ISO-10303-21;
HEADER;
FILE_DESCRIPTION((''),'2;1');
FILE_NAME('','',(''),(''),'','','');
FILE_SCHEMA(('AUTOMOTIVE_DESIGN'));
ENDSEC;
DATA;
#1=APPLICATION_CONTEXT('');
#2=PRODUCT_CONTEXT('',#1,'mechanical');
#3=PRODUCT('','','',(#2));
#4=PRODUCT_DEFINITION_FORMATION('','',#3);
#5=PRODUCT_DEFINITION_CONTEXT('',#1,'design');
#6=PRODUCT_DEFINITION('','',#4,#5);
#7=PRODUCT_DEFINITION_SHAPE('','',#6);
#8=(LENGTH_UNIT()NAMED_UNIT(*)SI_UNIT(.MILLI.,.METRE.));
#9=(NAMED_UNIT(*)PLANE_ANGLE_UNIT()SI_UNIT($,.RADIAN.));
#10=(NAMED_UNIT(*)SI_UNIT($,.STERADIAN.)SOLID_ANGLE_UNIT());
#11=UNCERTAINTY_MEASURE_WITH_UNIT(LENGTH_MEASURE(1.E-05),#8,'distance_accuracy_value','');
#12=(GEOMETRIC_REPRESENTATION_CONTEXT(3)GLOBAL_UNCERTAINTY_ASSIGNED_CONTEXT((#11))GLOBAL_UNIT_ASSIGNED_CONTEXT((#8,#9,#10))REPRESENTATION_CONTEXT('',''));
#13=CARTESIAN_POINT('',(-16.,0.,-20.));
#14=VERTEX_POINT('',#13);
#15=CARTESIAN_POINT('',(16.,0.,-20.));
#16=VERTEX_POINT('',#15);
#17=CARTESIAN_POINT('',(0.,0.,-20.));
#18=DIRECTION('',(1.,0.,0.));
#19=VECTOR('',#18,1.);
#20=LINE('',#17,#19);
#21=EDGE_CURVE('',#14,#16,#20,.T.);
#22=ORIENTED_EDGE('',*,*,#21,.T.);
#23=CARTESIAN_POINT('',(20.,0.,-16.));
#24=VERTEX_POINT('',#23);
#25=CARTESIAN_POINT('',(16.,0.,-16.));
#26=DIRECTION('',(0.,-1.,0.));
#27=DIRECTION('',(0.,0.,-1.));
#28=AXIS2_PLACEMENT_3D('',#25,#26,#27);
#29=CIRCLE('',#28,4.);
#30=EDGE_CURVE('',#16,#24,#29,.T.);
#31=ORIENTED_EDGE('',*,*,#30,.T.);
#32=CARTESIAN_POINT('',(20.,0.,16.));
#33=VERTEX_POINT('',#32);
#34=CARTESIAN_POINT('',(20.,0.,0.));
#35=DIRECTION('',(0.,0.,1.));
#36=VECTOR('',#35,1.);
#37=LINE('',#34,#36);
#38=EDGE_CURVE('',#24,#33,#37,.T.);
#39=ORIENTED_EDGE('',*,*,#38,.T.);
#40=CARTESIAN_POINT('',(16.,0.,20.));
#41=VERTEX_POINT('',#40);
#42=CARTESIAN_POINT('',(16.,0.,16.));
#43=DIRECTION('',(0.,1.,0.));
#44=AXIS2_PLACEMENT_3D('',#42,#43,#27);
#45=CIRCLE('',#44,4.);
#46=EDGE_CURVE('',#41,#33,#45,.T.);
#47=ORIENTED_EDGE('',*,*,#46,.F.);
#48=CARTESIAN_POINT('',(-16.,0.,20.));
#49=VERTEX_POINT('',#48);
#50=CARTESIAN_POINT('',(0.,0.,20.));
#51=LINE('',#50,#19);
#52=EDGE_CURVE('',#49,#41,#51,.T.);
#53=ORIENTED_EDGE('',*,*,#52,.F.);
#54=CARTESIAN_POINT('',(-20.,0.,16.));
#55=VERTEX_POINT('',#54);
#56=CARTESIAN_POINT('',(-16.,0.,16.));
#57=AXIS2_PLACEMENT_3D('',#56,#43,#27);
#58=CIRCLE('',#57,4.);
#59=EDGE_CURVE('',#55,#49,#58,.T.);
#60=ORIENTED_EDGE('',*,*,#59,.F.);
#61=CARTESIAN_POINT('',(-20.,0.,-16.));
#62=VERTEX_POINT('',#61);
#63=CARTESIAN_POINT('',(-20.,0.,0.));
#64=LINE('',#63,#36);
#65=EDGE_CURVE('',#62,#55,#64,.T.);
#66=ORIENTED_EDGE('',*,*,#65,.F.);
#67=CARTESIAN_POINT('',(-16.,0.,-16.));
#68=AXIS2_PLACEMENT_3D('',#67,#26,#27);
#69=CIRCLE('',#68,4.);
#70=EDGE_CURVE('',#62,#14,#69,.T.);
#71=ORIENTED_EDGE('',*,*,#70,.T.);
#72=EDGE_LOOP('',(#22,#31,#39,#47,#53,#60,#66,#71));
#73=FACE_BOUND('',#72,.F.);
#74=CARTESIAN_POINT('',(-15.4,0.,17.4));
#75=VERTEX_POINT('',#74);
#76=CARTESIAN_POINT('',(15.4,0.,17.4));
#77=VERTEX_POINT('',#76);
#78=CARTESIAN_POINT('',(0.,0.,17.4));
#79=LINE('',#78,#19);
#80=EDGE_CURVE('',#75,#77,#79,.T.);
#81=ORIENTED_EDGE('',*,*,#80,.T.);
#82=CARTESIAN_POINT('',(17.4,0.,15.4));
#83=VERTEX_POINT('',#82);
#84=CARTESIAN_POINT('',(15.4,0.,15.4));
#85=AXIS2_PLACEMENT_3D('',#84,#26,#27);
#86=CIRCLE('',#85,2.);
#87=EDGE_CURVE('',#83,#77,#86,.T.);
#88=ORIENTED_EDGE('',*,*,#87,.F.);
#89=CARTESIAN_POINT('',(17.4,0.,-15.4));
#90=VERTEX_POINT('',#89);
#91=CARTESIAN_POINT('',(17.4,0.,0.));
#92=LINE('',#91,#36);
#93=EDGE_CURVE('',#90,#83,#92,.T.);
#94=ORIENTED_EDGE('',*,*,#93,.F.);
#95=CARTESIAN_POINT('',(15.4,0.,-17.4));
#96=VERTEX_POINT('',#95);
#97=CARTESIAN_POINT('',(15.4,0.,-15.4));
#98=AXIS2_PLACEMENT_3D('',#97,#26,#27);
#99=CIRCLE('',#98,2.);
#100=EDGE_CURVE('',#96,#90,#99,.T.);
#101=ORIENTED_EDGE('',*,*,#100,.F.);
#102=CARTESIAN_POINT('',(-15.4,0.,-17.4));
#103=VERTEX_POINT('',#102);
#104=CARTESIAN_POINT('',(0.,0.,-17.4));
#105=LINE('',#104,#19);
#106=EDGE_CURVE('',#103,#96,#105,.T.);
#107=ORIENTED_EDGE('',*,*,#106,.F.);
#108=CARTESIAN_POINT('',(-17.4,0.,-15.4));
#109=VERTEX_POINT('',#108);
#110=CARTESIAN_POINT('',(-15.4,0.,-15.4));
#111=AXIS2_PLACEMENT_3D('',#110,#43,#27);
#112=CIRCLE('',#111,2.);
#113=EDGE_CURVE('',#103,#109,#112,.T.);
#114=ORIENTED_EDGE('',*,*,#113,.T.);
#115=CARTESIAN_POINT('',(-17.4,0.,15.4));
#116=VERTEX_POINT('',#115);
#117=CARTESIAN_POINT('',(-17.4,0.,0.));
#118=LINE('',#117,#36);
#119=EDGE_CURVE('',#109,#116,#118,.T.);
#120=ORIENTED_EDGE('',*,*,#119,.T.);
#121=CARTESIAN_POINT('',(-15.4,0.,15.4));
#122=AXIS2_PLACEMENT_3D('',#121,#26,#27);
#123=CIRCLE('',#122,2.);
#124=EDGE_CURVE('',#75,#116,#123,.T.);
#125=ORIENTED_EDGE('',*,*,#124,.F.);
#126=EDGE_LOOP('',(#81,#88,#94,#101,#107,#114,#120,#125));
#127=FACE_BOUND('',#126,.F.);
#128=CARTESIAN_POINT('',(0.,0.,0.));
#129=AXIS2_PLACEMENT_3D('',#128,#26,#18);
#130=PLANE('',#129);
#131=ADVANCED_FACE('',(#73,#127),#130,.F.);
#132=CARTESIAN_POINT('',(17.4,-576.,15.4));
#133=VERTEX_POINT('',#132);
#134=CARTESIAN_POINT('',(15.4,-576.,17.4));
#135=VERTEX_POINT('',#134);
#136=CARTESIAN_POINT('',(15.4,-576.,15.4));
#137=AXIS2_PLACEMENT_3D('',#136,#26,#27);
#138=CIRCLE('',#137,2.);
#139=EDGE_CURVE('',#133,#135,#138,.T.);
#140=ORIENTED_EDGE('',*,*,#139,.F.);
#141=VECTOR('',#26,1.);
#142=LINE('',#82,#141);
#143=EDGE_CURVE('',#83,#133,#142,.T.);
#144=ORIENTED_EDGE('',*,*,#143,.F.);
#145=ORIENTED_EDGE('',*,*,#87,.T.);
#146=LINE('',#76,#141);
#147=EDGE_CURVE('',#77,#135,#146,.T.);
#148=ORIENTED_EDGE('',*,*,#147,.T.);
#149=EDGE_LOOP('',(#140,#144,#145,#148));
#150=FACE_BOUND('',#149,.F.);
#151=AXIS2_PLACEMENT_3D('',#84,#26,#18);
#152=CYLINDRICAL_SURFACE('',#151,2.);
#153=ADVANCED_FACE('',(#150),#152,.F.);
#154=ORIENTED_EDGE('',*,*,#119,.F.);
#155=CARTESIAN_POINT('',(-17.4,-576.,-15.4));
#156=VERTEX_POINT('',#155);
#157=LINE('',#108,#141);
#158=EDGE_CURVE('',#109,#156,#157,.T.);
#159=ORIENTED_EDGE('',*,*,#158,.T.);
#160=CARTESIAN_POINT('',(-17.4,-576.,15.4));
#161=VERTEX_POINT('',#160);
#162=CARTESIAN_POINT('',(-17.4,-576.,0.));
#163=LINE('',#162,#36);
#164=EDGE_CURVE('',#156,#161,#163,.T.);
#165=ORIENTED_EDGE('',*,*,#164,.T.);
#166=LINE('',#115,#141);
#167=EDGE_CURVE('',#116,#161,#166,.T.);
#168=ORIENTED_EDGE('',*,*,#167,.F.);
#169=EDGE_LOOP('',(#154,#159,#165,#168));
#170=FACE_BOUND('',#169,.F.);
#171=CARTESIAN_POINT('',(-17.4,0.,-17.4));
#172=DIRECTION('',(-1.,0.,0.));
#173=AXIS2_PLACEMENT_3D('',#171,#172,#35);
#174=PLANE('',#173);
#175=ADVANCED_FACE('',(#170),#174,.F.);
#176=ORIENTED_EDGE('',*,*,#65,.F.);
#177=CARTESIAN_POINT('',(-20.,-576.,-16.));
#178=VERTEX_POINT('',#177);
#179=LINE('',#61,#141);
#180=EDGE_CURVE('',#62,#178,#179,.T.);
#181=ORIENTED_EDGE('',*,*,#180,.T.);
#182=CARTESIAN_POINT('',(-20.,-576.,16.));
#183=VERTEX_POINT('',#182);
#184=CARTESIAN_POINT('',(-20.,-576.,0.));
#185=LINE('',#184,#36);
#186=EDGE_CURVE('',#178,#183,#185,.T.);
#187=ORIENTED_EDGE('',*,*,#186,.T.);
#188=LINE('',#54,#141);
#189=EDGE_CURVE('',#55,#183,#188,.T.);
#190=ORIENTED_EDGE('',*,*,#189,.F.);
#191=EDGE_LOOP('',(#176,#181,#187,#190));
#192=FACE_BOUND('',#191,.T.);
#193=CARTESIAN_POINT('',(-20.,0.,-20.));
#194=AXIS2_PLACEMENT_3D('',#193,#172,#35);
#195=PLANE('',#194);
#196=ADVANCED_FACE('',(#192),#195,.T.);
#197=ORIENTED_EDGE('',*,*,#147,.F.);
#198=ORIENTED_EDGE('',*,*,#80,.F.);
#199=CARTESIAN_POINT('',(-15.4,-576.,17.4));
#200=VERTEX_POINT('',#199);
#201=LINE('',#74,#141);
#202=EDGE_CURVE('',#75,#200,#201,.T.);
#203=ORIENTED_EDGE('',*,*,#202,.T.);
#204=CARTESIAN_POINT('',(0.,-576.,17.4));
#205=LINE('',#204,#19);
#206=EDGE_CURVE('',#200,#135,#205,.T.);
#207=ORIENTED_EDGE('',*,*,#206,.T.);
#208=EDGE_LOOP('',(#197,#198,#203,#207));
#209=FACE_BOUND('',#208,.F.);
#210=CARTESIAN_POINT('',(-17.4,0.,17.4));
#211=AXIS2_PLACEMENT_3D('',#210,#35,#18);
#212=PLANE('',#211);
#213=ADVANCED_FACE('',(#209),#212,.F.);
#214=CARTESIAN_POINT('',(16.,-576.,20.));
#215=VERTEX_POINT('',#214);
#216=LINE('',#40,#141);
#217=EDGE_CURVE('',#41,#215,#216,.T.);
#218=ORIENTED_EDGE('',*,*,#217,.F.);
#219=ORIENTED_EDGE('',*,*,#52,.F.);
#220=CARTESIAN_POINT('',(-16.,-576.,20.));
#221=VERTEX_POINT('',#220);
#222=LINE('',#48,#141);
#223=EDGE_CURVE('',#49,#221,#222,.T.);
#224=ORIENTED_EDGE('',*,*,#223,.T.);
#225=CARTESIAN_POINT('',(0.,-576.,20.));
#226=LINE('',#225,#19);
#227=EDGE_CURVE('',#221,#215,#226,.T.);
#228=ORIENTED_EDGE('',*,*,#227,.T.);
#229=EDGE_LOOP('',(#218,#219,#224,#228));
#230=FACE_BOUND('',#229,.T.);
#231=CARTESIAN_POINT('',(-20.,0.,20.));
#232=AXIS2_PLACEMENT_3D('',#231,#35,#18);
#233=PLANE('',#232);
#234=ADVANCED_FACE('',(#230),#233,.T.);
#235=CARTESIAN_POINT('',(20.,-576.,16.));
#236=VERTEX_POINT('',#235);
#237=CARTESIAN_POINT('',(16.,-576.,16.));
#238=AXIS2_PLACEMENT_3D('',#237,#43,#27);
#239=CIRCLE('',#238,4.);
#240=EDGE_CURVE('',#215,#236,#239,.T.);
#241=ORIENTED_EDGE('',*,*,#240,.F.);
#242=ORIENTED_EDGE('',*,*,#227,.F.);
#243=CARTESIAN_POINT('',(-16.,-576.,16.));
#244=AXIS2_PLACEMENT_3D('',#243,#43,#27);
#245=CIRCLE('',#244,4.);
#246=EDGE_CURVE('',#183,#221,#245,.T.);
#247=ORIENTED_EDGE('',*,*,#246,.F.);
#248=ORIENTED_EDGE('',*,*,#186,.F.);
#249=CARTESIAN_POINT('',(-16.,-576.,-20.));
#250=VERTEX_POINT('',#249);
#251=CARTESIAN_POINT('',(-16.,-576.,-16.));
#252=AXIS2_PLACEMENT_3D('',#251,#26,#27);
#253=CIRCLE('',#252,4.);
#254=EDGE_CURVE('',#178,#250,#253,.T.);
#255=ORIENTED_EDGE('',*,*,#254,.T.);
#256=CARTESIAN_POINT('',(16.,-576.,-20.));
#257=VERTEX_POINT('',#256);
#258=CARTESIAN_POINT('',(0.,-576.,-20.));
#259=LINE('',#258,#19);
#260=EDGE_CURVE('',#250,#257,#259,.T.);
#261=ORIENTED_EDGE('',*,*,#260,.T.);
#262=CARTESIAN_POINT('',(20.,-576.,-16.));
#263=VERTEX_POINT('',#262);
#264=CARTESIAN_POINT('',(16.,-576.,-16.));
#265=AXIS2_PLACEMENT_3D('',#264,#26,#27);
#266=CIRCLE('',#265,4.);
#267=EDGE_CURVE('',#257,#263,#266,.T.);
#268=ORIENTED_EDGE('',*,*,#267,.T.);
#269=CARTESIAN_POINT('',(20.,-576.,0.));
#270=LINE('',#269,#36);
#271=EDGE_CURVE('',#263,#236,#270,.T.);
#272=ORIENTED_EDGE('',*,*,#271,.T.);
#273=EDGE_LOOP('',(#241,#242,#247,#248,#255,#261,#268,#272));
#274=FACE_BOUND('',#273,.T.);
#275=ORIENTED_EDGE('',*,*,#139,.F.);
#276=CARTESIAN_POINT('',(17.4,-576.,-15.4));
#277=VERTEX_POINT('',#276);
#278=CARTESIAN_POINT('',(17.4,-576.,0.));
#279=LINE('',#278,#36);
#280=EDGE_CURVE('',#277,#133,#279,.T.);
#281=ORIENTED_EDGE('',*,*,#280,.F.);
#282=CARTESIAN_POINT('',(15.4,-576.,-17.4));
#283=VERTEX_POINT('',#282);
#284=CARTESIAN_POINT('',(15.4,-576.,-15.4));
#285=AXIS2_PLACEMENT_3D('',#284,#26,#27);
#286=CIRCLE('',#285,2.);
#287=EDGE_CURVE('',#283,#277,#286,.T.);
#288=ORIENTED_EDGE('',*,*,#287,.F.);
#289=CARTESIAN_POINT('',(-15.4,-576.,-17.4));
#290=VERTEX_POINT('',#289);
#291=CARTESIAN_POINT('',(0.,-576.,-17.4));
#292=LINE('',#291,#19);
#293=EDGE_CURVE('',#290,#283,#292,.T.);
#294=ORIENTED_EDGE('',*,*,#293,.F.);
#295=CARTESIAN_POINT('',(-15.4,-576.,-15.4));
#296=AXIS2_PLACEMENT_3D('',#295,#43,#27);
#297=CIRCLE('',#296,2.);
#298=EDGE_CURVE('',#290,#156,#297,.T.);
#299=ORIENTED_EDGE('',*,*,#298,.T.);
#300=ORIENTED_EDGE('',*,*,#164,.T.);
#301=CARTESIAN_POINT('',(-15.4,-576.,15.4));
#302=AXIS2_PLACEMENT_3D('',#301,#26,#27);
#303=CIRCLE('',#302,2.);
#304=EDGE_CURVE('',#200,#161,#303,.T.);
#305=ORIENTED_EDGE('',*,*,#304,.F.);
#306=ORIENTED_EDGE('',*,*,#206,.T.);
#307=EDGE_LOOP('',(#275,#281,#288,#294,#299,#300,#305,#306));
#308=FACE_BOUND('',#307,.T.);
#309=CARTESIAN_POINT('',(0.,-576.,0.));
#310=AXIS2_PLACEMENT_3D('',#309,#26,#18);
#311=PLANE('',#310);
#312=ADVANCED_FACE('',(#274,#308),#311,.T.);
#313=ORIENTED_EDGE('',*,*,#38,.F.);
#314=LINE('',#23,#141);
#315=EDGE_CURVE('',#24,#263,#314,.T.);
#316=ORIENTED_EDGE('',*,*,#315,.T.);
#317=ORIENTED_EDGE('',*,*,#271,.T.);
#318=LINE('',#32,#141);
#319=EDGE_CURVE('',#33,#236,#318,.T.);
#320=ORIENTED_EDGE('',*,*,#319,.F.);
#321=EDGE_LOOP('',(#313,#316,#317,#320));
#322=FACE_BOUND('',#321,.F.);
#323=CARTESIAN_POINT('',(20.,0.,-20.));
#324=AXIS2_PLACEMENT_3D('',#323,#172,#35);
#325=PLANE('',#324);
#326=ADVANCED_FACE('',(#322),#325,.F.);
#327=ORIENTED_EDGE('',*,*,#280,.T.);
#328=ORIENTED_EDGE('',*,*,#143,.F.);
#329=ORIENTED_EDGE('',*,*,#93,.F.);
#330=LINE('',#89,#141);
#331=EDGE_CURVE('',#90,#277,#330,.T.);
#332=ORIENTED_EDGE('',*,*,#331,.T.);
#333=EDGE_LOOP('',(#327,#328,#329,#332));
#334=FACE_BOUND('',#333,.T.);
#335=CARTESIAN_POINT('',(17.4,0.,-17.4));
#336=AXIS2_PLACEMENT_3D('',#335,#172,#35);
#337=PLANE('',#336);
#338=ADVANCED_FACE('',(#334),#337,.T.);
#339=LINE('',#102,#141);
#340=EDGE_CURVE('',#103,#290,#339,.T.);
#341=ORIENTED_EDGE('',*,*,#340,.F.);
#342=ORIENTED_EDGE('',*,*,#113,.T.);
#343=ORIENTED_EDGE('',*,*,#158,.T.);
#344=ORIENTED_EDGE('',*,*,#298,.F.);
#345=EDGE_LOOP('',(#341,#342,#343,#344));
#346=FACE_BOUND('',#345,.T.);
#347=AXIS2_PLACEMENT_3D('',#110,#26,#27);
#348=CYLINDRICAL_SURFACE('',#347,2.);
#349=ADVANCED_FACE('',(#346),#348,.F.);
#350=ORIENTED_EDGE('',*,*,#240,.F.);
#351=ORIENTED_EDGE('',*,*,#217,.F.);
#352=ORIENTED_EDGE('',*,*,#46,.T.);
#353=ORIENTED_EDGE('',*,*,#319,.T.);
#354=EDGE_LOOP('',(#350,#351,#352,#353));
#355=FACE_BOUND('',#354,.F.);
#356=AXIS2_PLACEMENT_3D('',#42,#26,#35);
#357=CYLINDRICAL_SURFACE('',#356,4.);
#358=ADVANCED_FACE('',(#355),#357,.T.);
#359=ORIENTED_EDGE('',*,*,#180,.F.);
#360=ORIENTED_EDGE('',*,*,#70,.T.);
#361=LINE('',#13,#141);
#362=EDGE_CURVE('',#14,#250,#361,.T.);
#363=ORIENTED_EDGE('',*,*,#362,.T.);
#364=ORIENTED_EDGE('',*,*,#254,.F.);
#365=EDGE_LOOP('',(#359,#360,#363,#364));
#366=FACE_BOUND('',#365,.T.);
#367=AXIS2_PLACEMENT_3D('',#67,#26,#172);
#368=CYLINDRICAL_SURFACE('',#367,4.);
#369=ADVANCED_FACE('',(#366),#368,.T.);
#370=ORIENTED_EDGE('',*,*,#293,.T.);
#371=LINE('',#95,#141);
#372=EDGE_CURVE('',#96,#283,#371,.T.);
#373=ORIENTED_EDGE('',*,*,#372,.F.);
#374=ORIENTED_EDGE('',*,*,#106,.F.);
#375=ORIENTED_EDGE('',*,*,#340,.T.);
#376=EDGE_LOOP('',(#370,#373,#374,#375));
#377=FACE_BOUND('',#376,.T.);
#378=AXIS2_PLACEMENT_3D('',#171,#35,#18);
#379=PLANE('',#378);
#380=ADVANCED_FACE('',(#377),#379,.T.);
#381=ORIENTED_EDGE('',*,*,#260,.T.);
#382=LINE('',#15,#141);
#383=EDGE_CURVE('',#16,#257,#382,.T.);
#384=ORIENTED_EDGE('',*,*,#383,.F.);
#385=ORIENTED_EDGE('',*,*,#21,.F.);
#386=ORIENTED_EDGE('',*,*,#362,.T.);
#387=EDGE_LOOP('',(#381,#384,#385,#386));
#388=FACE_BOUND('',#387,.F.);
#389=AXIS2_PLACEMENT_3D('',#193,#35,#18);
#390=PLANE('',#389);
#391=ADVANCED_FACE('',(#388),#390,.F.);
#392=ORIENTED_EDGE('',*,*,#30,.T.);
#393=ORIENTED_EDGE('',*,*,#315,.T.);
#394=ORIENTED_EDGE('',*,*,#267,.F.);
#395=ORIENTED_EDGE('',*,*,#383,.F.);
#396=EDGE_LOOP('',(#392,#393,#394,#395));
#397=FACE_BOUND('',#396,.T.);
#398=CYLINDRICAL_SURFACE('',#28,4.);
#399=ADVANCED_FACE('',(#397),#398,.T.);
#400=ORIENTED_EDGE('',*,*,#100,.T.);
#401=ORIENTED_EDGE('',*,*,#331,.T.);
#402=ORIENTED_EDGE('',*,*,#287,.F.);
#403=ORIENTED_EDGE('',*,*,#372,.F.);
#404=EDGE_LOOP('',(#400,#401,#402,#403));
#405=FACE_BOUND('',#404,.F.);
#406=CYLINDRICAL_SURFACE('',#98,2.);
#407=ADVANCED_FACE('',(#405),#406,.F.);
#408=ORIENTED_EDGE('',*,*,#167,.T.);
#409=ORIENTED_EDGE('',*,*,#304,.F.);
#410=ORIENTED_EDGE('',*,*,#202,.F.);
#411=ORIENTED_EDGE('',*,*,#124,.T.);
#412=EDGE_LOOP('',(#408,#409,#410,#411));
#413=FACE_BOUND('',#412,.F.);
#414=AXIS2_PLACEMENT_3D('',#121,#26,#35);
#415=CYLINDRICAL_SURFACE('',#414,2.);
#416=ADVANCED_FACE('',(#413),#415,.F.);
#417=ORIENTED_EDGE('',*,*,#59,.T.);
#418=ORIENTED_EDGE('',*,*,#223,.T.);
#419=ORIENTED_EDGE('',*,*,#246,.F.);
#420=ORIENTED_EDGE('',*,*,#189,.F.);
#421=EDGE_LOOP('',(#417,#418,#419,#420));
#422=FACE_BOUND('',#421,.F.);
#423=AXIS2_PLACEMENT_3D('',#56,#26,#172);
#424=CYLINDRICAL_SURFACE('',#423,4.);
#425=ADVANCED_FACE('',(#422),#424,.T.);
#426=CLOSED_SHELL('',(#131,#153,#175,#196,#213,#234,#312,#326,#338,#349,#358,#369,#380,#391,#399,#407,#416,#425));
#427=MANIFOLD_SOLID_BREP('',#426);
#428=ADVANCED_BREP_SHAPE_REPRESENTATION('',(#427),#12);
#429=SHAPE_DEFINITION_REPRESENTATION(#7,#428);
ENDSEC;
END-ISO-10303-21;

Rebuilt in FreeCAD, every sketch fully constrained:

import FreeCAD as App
import Part
import Sketcher
from FreeCAD import Vector


def edges_at(feature, points):
    """Names of the edges that pass closest to the given points."""
    edges = feature.Shape.Edges
    near = lambda p: min(range(len(edges)), key=lambda i: edges[i].distToShape(Part.Vertex(*p))[0])
    return sorted({f"Edge{near(p) + 1}" for p in points})

doc = App.newDocument("Part")
params = doc.addObject("Spreadsheet::Sheet", "Params")
for row, (alias, value) in enumerate([
    ("sketch1_width", "40 mm"),
    ("sketch1_width2", "34.8 mm"),
    ("pad1_length", "576 mm"),
    ("fillet_radius", "4 mm"),
    ("fillet2_radius", "2 mm"),
], start=1):
    params.set(f"A{row}", alias)
    params.set(f"B{row}", "=" + value)
    params.setAlias(f"B{row}", alias)

body = doc.addObject("PartDesign::Body", "Body")

# Sketch on XZ plane
sketch1 = body.newObject("Sketcher::SketchObject", "Sketch")
sketch1.AttachmentSupport = (doc.getObject("XZ_Plane"), [""])
sketch1.MapMode = "FlatFace"
sketch1.addGeometry([
    Part.LineSegment(Vector(-20, 20, 0), Vector(-20, -20, 0)),  # 0
    Part.LineSegment(Vector(-20, -20, 0), Vector(20, -20, 0)),  # 1
    Part.LineSegment(Vector(20, -20, 0), Vector(20, 20, 0)),  # 2
    Part.LineSegment(Vector(20, 20, 0), Vector(-20, 20, 0)),  # 3
    Part.LineSegment(Vector(17, -17, 0), Vector(-17, -17, 0)),  # 4
    Part.LineSegment(Vector(-17, -17, 0), Vector(-17, 17, 0)),  # 5
    Part.LineSegment(Vector(-17, 17, 0), Vector(17, 17, 0)),  # 6
    Part.LineSegment(Vector(17, 17, 0), Vector(17, -17, 0)),  # 7
], False)
sketch1.addConstraint([
    Sketcher.Constraint("Coincident", 0, 2, 1, 1),
    Sketcher.Constraint("Coincident", 1, 2, 2, 1),
    Sketcher.Constraint("Coincident", 2, 2, 3, 1),
    Sketcher.Constraint("Coincident", 3, 2, 0, 1),
    Sketcher.Constraint("Coincident", 4, 2, 5, 1),
    Sketcher.Constraint("Coincident", 5, 2, 6, 1),
    Sketcher.Constraint("Coincident", 6, 2, 7, 1),
    Sketcher.Constraint("Coincident", 7, 2, 4, 1),
    Sketcher.Constraint("Vertical", 0),
    Sketcher.Constraint("Horizontal", 1),
    Sketcher.Constraint("Vertical", 2),
    Sketcher.Constraint("Horizontal", 3),
    Sketcher.Constraint("Horizontal", 4),
    Sketcher.Constraint("Vertical", 5),
    Sketcher.Constraint("Horizontal", 6),
    Sketcher.Constraint("Vertical", 7),
    Sketcher.Constraint("Symmetric", 0, 2, 2, 2, -1, 1),
    Sketcher.Constraint("Symmetric", 4, 2, 6, 2, -1, 1),
    Sketcher.Constraint("Equal", 3, 0),
    Sketcher.Constraint("Equal", 6, 5),
    Sketcher.Constraint("DistanceX", 1, 1, 1, 2, 40.0),
    Sketcher.Constraint("DistanceX", 4, 2, 4, 1, 34.8),
])
sketch1.setExpression("Constraints[20]", "Params.sketch1_width")
sketch1.setExpression("Constraints[21]", "Params.sketch1_width2")
pad1 = body.newObject("PartDesign::Pad", "Pad")
pad1.Profile = sketch1
pad1.setExpression("Length", "Params.pad1_length")
doc.recompute()

fillet = body.newObject("PartDesign::Fillet", "Fillet")
fillet.Base = (pad1, edges_at(pad1, [
    (20, -288, 20),
    (-20, -288, 20),
    (20, -288, -20),
    (-20, -288, -20),
]))
fillet.setExpression("Radius", "Params.fillet_radius")
doc.recompute()

fillet2 = body.newObject("PartDesign::Fillet", "Fillet001")
fillet2.Base = (fillet, edges_at(fillet, [
    (-17.4, -288, 17.4),
    (-17.4, -288, -17.4),
    (17.4, -288, -17.4),
    (17.4, -288, 17.4),
]))
fillet2.setExpression("Radius", "Params.fillet2_radius")

doc.recompute()
